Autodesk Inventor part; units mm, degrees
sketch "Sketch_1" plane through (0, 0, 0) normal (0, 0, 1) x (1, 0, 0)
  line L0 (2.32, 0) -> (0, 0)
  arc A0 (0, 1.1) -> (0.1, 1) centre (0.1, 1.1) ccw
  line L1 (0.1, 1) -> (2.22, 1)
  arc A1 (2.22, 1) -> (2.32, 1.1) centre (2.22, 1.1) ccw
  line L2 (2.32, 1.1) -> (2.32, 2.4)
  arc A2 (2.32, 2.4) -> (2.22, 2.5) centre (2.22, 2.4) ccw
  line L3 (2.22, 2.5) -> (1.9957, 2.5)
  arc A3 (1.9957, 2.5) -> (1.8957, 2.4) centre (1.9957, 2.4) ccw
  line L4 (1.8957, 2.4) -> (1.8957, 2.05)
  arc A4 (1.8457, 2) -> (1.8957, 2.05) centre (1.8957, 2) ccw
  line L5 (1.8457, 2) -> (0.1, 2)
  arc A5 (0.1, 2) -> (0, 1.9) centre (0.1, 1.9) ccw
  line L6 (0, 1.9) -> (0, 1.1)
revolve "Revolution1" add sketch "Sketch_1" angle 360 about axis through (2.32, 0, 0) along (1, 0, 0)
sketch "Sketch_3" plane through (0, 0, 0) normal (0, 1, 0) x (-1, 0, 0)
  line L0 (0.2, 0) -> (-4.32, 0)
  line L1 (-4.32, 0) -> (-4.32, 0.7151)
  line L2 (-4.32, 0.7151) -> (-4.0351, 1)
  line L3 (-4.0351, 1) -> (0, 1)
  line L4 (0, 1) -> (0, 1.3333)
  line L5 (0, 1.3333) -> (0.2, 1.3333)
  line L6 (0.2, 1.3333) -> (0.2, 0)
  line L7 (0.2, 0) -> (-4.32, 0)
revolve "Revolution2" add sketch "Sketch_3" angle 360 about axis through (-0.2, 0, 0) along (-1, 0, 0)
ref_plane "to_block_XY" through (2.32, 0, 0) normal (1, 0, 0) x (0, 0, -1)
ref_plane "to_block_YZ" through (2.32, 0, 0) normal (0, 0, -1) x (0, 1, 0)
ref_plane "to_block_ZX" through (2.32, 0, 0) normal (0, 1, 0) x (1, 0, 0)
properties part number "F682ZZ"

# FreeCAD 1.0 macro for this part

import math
import FreeCAD as App
import Part
import Sketcher

V = App.Vector
Q = App.Units.Quantity

doc = App.newDocument("Part")
body = doc.addObject("PartDesign::Body", "Body")

sketch1 = doc.addObject("Sketcher::SketchObject", "Sketch")
body.addObject(sketch1)
sketch1.AttachmentSupport = (doc.XY_Plane, [""])
sketch1.MapMode = "FlatFace"
sketch1.addGeometry([
    Part.LineSegment(V(0, 1.9, 0), V(0, 1.1, 0)),
    Part.ArcOfCircle(Part.Circle(V(0.1, 1.1, 0), V(0, 0, 1), 0.1), math.radians(180), math.radians(270)),
    Part.LineSegment(V(0.1, 1, 0), V(2.22, 1, 0)),
    Part.ArcOfCircle(Part.Circle(V(2.22, 1.1, 0), V(0, 0, 1), 0.1), math.radians(-90), math.radians(0)),
    Part.LineSegment(V(2.32, 1.1, 0), V(2.32, 2.4, 0)),
    Part.ArcOfCircle(Part.Circle(V(2.22, 2.4, 0), V(0, 0, 1), 0.1), math.radians(0), math.radians(90)),
    Part.LineSegment(V(2.22, 2.5, 0), V(1.9957, 2.5, 0)),
    Part.ArcOfCircle(Part.Circle(V(1.9957, 2.4, 0), V(0, 0, 1), 0.1), math.radians(90), math.radians(180)),
    Part.LineSegment(V(1.8957, 2.4, 0), V(1.8957, 2.05, 0)),
    Part.ArcOfCircle(Part.Circle(V(1.8957, 2, 0), V(0, 0, 1), 0.05), math.radians(180), math.radians(450)),
    Part.LineSegment(V(1.8457, 2, 0), V(0.1, 2, 0)),
    Part.ArcOfCircle(Part.Circle(V(0.1, 1.9, 0), V(0, 0, 1), 0.1), math.radians(90), math.radians(180)),
], False)
sketch1.addConstraint([
    Sketcher.Constraint("Tangent", 0, 2, 1, 1),
    Sketcher.Constraint("Tangent", 1, 2, 2, 1),
    Sketcher.Constraint("Tangent", 2, 2, 3, 1),
    Sketcher.Constraint("Tangent", 3, 2, 4, 1),
    Sketcher.Constraint("Tangent", 4, 2, 5, 1),
    Sketcher.Constraint("Tangent", 5, 2, 6, 1),
    Sketcher.Constraint("Tangent", 6, 2, 7, 1),
    Sketcher.Constraint("Tangent", 7, 2, 8, 1),
    Sketcher.Constraint("Coincident", 8, 2, 9, 2),
    Sketcher.Constraint("Coincident", 9, 1, 10, 1),
    Sketcher.Constraint("Tangent", 10, 2, 11, 1),
    Sketcher.Constraint("Tangent", 11, 2, 0, 1),
    Sketcher.Constraint("Vertical", 0),
    Sketcher.Constraint("Horizontal", 2),
    Sketcher.Constraint("Vertical", 4),
    Sketcher.Constraint("Horizontal", 6),
    Sketcher.Constraint("Vertical", 8),
    Sketcher.Constraint("Horizontal", 10),
    Sketcher.Constraint("Equal", 1, 3),
    Sketcher.Constraint("Equal", 3, 5),
    Sketcher.Constraint("Equal", 5, 7),
    Sketcher.Constraint("Equal", 7, 11),
    Sketcher.Constraint("PointOnObject", 0, 2, -2),
    Sketcher.Constraint("Vertical", 9, 3, 7, 2),
    Sketcher.Constraint("Radius", 1, Q("0.1 mm")),
    Sketcher.Constraint("Radius", 9, Q("0.05 mm")),
    Sketcher.Constraint("DistanceY", 0, 2, 0, 1, Q("0.8 mm")),
    Sketcher.Constraint("DistanceY", 4, 1, 4, 2, Q("1.3 mm")),
    Sketcher.Constraint("DistanceY", -1, 1, 9, 3, Q("2 mm")),
    Sketcher.Constraint("DistanceY", -1, 1, 1, 2, Q("1 mm")),
    Sketcher.Constraint("DistanceX", 2, 1, 2, 2, Q("2.12 mm")),
    Sketcher.Constraint("DistanceX", 6, 2, 6, 1, Q("0.2243 mm")),
])
revolution = doc.addObject("PartDesign::Revolution", "Revolution")
body.addObject(revolution)
revolution.Profile = sketch1
revolution.ReferenceAxis = (sketch1, ["H_Axis"])
revolution.Angle = 360

sketch2 = doc.addObject("Sketcher::SketchObject", "Sketch001")
body.addObject(sketch2)
sketch2.AttachmentSupport = (doc.XZ_Plane, [""])
sketch2.MapMode = "FlatFace"
sketch2.addGeometry([
    Part.LineSegment(V(4.32, 0, 0), V(-0.2, 0, 0)),
    Part.LineSegment(V(-0.2, 0, 0), V(-0.2, 1.3333, 0)),
    Part.LineSegment(V(-0.2, 1.3333, 0), V(0, 1.3333, 0)),
    Part.LineSegment(V(0, 1.3333, 0), V(0, 1, 0)),
    Part.LineSegment(V(0, 1, 0), V(4.0351, 1, 0)),
    Part.LineSegment(V(4.0351, 1, 0), V(4.32, 0.7151, 0)),
    Part.LineSegment(V(4.32, 0.7151, 0), V(4.32, 0, 0)),
], False)
sketch2.addConstraint([
    Sketcher.Constraint("Coincident", 0, 2, 1, 1),
    Sketcher.Constraint("Coincident", 1, 2, 2, 1),
    Sketcher.Constraint("Coincident", 2, 2, 3, 1),
    Sketcher.Constraint("Coincident", 3, 2, 4, 1),
    Sketcher.Constraint("Coincident", 4, 2, 5, 1),
    Sketcher.Constraint("Coincident", 5, 2, 6, 1),
    Sketcher.Constraint("Coincident", 6, 2, 0, 1),
    Sketcher.Constraint("Horizontal", 0),
    Sketcher.Constraint("Vertical", 1),
    Sketcher.Constraint("Horizontal", 2),
    Sketcher.Constraint("Vertical", 3),
    Sketcher.Constraint("Horizontal", 4),
    Sketcher.Constraint("Vertical", 6),
    Sketcher.Constraint("PointOnObject", 0, 2, -1),
    Sketcher.Constraint("PointOnObject", 2, 2, -2),
    Sketcher.Constraint("Angle", 5, Q("-45 deg")),
    Sketcher.Constraint("DistanceX", 2, 1, 2, 2, Q("0.2 mm")),
    Sketcher.Constraint("DistanceY", -1, 1, 3, 2, Q("1 mm")),
    Sketcher.Constraint("DistanceX", 0, 2, 0, 1, Q("4.52 mm")),
    Sketcher.Constraint("DistanceX", 4, 1, 4, 2, Q("4.035 mm")),
    Sketcher.Constraint("DistanceY", 1, 1, 1, 2, Q("1.3333 mm")),
])
revolution2 = doc.addObject("PartDesign::Revolution", "Revolution001")
body.addObject(revolution2)
revolution2.Profile = sketch2
revolution2.ReferenceAxis = (sketch2, ["H_Axis"])
revolution2.Angle = 360

doc.recompute()
